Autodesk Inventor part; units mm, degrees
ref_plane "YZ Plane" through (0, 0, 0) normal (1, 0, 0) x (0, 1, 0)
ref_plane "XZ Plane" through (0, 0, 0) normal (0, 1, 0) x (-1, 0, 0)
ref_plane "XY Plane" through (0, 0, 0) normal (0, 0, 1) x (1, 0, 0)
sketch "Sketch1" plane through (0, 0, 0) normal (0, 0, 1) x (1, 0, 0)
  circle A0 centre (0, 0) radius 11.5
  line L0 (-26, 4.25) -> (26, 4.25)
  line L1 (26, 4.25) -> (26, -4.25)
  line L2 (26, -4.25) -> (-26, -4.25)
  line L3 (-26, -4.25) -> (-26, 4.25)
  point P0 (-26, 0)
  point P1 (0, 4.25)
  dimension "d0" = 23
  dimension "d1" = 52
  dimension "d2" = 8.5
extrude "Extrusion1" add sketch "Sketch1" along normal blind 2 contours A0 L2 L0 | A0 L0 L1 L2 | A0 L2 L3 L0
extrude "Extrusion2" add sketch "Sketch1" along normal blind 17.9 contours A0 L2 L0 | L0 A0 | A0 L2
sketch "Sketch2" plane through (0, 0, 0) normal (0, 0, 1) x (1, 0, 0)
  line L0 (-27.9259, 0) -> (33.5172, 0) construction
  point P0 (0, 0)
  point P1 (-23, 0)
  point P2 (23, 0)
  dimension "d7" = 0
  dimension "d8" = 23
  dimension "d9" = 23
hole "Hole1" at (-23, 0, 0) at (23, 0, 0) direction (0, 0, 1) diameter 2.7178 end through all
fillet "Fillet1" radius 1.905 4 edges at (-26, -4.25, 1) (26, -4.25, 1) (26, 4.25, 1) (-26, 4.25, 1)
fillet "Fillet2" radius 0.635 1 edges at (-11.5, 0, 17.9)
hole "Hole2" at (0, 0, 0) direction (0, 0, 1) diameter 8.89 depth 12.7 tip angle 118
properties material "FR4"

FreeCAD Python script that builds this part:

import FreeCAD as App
import Part
import Sketcher
from FreeCAD import Vector
Q = App.Units.Quantity


def edges_at(feature, points):
    """Names of the edges that pass closest to the given points."""
    edges = feature.Shape.Edges
    near = lambda p: min(range(len(edges)), key=lambda i: edges[i].distToShape(Part.Vertex(*p))[0])
    return sorted({f"Edge{near(p) + 1}" for p in points})

doc = App.newDocument("Part")
params = doc.addObject("Spreadsheet::Sheet", "Params")
for row, (alias, value) in enumerate([
    ("pad1_length", "2 mm"),
    ("pad2_length", "17.9 mm"),
    ("sketch3_diameter", "0.107 in"),
    ("hole_diameter", "0.107 in"),
    ("fillet_radius", "0.075 in"),
    ("fillet2_radius", "0.025 in"),
    ("sketch4_diameter", "0.35 in"),
    ("hole2_diameter", "0.35 in"),
    ("hole2_depth", "0.5 in"),
], start=1):
    params.set(f"A{row}", alias)
    params.set(f"B{row}", "=" + value)
    params.setAlias(f"B{row}", alias)

body = doc.addObject("PartDesign::Body", "Body")

sketch1 = body.newObject("Sketcher::SketchObject", "Sketch")
sketch1.AttachmentSupport = (doc.getObject("XY_Plane"), [""])
sketch1.MapMode = "FlatFace"
sketch1.addGeometry(Part.LineSegment(Vector(26, -4, 0), Vector(26, 4, 0)), False)
sketch1.addGeometry(Part.LineSegment(Vector(26, 4, 0), Vector(-26, 4, 0)), False)
sketch1.addGeometry(Part.LineSegment(Vector(-26, 4, 0), Vector(-26, -4, 0)), False)
sketch1.addGeometry(Part.LineSegment(Vector(-26, -4, 0), Vector(26, -4, 0)), False)
sketch1.addConstraint(Sketcher.Constraint("Coincident", 0, 2, 1, 1))
sketch1.addConstraint(Sketcher.Constraint("Coincident", 1, 2, 2, 1))
sketch1.addConstraint(Sketcher.Constraint("Coincident", 2, 2, 3, 1))
sketch1.addConstraint(Sketcher.Constraint("Coincident", 3, 2, 0, 1))
sketch1.addConstraint(Sketcher.Constraint("Vertical", 0))
sketch1.addConstraint(Sketcher.Constraint("Horizontal", 1))
sketch1.addConstraint(Sketcher.Constraint("Vertical", 2))
sketch1.addConstraint(Sketcher.Constraint("Horizontal", 3))
sketch1.addConstraint(Sketcher.Constraint("Symmetric", 0, 2, 2, 2, -1, 1))
sketch1.addConstraint(Sketcher.Constraint("DistanceX", 1, 2, 1, 1, Q("52 mm")))
sketch1.addConstraint(Sketcher.Constraint("DistanceY", 0, 1, 0, 2, Q("8.5 mm")))
pad1 = body.newObject("PartDesign::Pad", "Pad")
pad1.Profile = sketch1
pad1.setExpression("Length", "Params.pad1_length")

sketch2 = body.newObject("Sketcher::SketchObject", "Sketch001")
sketch2.AttachmentSupport = (doc.getObject("XY_Plane"), [""])
sketch2.MapMode = "FlatFace"
sketch2.addGeometry(Part.Circle(Vector(0, 0, 0), Vector(0, 0, 1), 12), False)
sketch2.addConstraint(Sketcher.Constraint("Coincident", 0, 3, -1, 1))
sketch2.addConstraint(Sketcher.Constraint("Diameter", 0, Q("0.9055 in")))
pad2 = body.newObject("PartDesign::Pad", "Pad001")
pad2.Profile = sketch2
pad2.setExpression("Length", "Params.pad2_length")

sketch3 = body.newObject("Sketcher::SketchObject", "Sketch002")
sketch3.AttachmentSupport = (doc.getObject("XY_Plane"), [""])
sketch3.MapMode = "FlatFace"
sketch3.addGeometry(Part.Circle(Vector(-23, 0, 0), Vector(0, 0, 1), 1.4), False)
sketch3.addGeometry(Part.Circle(Vector(23, 0, 0), Vector(0, 0, 1), 1.4), False)
sketch3.addConstraint(Sketcher.Constraint("Equal", 0, 1))
sketch3.addConstraint(Sketcher.Constraint("Symmetric", 0, 3, 1, 3, -1, 1))
sketch3.addConstraint(Sketcher.Constraint("PointOnObject", 0, 3, -1))
sketch3.addConstraint(Sketcher.Constraint("Diameter", 0, Q("0.107 in")))
sketch3.addConstraint(Sketcher.Constraint("DistanceX", 0, 3, -1, 1, Q("0.9055 in")))
sketch3.setExpression("Constraints[3]", "Params.sketch3_diameter")
doc.recompute()
hole = body.newObject("PartDesign::Hole", "Hole")
hole.Profile = sketch3
hole.ThreadType = "None"
hole.setExpression("Diameter", "Params.hole_diameter")
hole.DepthType = "ThroughAll"
hole.Reversed = True
doc.recompute()

fillet = body.newObject("PartDesign::Fillet", "Fillet")
fillet.Base = (hole, edges_at(hole, [
    (-26, -4.25, 1),
    (26, -4.25, 1),
    (26, 4.25, 1),
    (-26, 4.25, 1),
]))
fillet.setExpression("Radius", "Params.fillet_radius")
doc.recompute()

fillet2 = body.newObject("PartDesign::Fillet", "Fillet001")
fillet2.Base = (fillet, edges_at(fillet, [(-11.5, 0, 17.9)]))
fillet2.setExpression("Radius", "Params.fillet2_radius")

sketch4 = body.newObject("Sketcher::SketchObject", "Sketch003")
sketch4.AttachmentSupport = (doc.getObject("XY_Plane"), [""])
sketch4.MapMode = "FlatFace"
sketch4.addGeometry(Part.Circle(Vector(0, 0, 0), Vector(0, 0, 1), 4.4), False)
sketch4.addConstraint(Sketcher.Constraint("Coincident", 0, 3, -1, 1))
sketch4.addConstraint(Sketcher.Constraint("Diameter", 0, Q("0.35 in")))
sketch4.setExpression("Constraints[1]", "Params.sketch4_diameter")
doc.recompute()
hole2 = body.newObject("PartDesign::Hole", "Hole001")
hole2.Profile = sketch4
hole2.ThreadType = "None"
hole2.setExpression("Diameter", "Params.hole2_diameter")
hole2.DepthType = "Dimension"
hole2.setExpression("Depth", "Params.hole2_depth")
hole2.DrillPoint = "Angled"
hole2.DrillPointAngle = 118
hole2.Reversed = True

doc.recompute()
